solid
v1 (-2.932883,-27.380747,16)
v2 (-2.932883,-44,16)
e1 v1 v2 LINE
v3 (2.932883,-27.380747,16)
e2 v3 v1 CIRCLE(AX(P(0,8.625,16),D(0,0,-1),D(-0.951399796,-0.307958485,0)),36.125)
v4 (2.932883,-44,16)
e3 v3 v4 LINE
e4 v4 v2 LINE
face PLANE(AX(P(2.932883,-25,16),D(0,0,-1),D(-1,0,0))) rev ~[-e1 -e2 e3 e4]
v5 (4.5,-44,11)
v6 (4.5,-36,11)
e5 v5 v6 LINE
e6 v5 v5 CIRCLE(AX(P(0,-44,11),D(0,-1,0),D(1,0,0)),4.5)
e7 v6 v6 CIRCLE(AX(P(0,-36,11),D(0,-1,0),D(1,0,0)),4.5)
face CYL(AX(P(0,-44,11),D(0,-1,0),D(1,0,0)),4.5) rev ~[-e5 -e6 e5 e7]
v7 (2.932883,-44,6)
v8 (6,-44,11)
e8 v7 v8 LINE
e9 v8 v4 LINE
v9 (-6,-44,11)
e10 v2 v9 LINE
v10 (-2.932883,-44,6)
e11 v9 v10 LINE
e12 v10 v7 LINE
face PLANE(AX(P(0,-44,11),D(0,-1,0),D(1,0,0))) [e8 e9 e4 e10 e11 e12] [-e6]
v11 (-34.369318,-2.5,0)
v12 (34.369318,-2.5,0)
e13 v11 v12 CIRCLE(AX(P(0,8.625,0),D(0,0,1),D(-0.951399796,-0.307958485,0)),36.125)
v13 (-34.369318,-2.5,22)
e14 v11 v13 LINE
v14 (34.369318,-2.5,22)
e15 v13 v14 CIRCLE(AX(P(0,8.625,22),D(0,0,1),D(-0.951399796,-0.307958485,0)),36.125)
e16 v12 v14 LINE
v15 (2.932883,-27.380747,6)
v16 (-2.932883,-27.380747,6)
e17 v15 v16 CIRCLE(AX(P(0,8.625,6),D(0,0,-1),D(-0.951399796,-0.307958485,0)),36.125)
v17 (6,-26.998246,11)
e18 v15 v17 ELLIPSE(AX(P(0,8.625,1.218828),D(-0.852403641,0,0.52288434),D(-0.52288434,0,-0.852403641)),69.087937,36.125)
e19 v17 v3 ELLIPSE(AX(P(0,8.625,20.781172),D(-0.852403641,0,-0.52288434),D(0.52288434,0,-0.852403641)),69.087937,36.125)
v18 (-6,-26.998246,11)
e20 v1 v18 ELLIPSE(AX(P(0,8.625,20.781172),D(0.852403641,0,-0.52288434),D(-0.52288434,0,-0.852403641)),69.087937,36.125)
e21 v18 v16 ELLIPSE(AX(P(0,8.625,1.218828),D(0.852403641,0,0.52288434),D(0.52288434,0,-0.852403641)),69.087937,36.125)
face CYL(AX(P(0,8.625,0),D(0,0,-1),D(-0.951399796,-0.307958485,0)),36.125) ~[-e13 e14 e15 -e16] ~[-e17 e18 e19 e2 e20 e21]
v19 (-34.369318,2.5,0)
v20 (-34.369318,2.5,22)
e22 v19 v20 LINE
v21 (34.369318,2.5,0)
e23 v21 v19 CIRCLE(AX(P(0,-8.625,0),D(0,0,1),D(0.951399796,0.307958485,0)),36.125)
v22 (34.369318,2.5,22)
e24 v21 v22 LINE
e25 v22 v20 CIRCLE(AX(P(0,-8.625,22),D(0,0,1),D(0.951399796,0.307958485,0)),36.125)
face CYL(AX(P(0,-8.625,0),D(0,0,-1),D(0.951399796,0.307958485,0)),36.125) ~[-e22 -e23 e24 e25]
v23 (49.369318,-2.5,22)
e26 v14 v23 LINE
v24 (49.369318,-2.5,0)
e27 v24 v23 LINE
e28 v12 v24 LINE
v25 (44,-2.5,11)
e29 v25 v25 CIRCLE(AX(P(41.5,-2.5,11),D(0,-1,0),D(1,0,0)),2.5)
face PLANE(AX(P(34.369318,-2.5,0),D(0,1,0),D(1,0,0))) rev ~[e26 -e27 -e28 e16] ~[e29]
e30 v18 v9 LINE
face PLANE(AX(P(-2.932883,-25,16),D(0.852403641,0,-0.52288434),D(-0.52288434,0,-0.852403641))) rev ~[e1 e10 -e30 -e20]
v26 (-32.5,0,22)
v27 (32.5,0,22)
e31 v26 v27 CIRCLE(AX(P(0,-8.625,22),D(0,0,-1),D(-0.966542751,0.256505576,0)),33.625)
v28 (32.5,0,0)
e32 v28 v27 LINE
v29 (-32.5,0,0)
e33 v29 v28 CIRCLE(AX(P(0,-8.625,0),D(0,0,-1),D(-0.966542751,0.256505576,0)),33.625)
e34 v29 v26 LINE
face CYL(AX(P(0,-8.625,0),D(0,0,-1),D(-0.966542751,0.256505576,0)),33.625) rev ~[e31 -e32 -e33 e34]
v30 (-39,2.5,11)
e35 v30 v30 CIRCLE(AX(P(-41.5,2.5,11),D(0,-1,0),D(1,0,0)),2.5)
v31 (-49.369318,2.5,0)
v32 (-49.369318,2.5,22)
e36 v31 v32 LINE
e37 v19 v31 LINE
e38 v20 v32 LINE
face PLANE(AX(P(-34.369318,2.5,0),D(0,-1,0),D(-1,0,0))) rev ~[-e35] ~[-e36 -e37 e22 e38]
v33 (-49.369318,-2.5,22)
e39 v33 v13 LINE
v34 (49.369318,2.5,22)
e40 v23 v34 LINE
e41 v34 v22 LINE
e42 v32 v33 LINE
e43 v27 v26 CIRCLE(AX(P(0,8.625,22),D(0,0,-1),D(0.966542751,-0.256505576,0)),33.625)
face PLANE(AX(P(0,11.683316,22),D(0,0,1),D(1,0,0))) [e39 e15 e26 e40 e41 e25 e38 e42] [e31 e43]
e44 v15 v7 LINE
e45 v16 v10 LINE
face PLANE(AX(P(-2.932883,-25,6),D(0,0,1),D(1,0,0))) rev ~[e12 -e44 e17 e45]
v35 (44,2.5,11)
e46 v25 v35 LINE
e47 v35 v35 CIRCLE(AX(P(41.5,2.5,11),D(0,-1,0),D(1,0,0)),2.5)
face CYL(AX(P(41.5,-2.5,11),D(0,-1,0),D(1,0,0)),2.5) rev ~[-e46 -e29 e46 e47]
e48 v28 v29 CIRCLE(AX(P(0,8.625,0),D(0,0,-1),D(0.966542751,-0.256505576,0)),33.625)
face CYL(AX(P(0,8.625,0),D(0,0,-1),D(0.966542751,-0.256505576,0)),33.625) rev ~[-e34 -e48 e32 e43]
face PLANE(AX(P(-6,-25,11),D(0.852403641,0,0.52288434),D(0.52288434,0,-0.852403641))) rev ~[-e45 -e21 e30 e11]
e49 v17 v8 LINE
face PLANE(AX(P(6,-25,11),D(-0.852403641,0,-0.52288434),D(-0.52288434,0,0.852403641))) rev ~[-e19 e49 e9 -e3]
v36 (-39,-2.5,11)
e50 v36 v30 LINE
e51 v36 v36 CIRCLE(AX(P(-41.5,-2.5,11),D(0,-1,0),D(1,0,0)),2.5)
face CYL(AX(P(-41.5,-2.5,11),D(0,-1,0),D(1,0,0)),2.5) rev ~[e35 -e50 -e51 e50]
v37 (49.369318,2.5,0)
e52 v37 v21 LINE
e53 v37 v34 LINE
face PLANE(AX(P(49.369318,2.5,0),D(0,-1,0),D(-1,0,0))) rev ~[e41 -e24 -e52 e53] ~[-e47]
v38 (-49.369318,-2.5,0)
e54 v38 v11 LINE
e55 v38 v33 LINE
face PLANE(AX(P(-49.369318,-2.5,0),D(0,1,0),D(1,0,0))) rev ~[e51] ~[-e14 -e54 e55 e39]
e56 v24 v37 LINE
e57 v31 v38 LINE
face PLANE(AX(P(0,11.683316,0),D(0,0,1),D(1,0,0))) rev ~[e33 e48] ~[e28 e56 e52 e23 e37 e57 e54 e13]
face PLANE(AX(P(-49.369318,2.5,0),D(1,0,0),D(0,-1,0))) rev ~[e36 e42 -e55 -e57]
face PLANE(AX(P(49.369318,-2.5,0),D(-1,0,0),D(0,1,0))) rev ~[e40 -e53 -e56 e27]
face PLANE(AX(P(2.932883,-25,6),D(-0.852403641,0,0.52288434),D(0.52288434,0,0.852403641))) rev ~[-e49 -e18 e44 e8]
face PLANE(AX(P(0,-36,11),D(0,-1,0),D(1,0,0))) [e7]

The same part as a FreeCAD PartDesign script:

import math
import FreeCAD as App
import Part
import Sketcher
from FreeCAD import Vector
Q = App.Units.Quantity

doc = App.newDocument("Part")
params = doc.addObject("Spreadsheet::Sheet", "Params")
for row, (alias, value) in enumerate([
    ("sketch1_width", "15 mm"),
    ("sketch1_height", "5 mm"),
    ("pad1_length", "22 mm"),
    ("pad2_length", "19 mm"),
    ("sketch3_diameter", "5 mm"),
    ("sketch4_diameter", "9 mm"),
    ("pocket2_length", "8 mm"),
], start=1):
    params.set(f"A{row}", alias)
    params.set(f"B{row}", "=" + value)
    params.setAlias(f"B{row}", alias)

body = doc.addObject("PartDesign::Body", "Body")

# Sketch on XY plane
sketch1 = body.newObject("Sketcher::SketchObject", "Sketch")
sketch1.AttachmentSupport = (doc.getObject("XY_Plane"), [""])
sketch1.MapMode = "FlatFace"
sketch1.addGeometry([
    Part.LineSegment(Vector(49, 2, 0), Vector(34, 2, 0)),  # 0
    Part.ArcOfCircle(Part.Circle(Vector(0, -9, 0), Vector(0, 0, 1), 36), math.radians(18), math.radians(162)),  # 1
    Part.LineSegment(Vector(-34, 2, 0), Vector(-49, 2, 0)),  # 2
    Part.LineSegment(Vector(-49, 2, 0), Vector(-49, -2, 0)),  # 3
    Part.LineSegment(Vector(-49, -2, 0), Vector(-34, -2, 0)),  # 4
    Part.ArcOfCircle(Part.Circle(Vector(0, 9, 0), Vector(0, 0, 1), 36), math.radians(-162), math.radians(-18)),  # 5
    Part.LineSegment(Vector(34, -2, 0), Vector(49, -2, 0)),  # 6
    Part.LineSegment(Vector(49, -2, 0), Vector(49, 2, 0)),  # 7
    Part.ArcOfCircle(Part.Circle(Vector(0, -9, 0), Vector(0, 0, 1), 34), math.radians(15), math.radians(165)),  # 8
    Part.ArcOfCircle(Part.Circle(Vector(0, 9, 0), Vector(0, 0, 1), 34), math.radians(-165), math.radians(-15)),  # 9
], False)
sketch1.addConstraint([
    Sketcher.Constraint("Coincident", 0, 2, 1, 1),
    Sketcher.Constraint("Coincident", 1, 2, 2, 1),
    Sketcher.Constraint("Coincident", 2, 2, 3, 1),
    Sketcher.Constraint("Coincident", 3, 2, 4, 1),
    Sketcher.Constraint("Coincident", 4, 2, 5, 1),
    Sketcher.Constraint("Coincident", 5, 2, 6, 1),
    Sketcher.Constraint("Coincident", 6, 2, 7, 1),
    Sketcher.Constraint("Coincident", 7, 2, 0, 1),
    Sketcher.Constraint("Coincident", 8, 1, 9, 2),
    Sketcher.Constraint("Coincident", 9, 1, 8, 2),
    Sketcher.Constraint("Horizontal", 0),
    Sketcher.Constraint("Horizontal", 2),
    Sketcher.Constraint("Vertical", 3),
    Sketcher.Constraint("Horizontal", 4),
    Sketcher.Constraint("Horizontal", 6),
    Sketcher.Constraint("Vertical", 7),
    Sketcher.Constraint("Coincident", 8, 3, 1, 3),
    Sketcher.Constraint("Coincident", 9, 3, 5, 3),
    Sketcher.Constraint("Equal", 1, 5),
    Sketcher.Constraint("Equal", 8, 9),
    Sketcher.Constraint("Symmetric", 1, 3, 5, 3, -1, 1),
    Sketcher.Constraint("Symmetric", 2, 2, 6, 2, -1, 1),
    Sketcher.Constraint("Symmetric", 0, 2, 1, 2, -2),
    Sketcher.Constraint("Horizontal", 4, 2, 5, 2),
    Sketcher.Constraint("DistanceX", 0, 2, 0, 1, Q("15 mm")),
    Sketcher.Constraint("DistanceY", 3, 2, 3, 1, Q("5 mm")),
    Sketcher.Constraint("Radius", 1, Q("36.125 mm")),
    Sketcher.Constraint("Radius", 8, Q("33.625 mm")),
    Sketcher.Constraint("DistanceX", -1, 1, 8, 1, Q("32.5 mm")),
])
sketch1.setExpression("Constraints[24]", "Params.sketch1_width")
sketch1.setExpression("Constraints[25]", "Params.sketch1_height")
pad1 = body.newObject("PartDesign::Pad", "Pad")
pad1.Profile = sketch1
pad1.setExpression("Length", "Params.pad1_length")

# Sketch on XZ plane
sketch2 = body.newObject("Sketcher::SketchObject", "Sketch001")
sketch2.AttachmentSupport = (doc.getObject("XZ_Plane"), [""])
sketch2.MapMode = "FlatFace"
sketch2.AttachmentOffset = App.Placement(Vector(0, 0, 25), App.Rotation())
sketch2.addGeometry([
    Part.LineSegment(Vector(6, 11, 0), Vector(3, 16, 0)),  # 0
    Part.LineSegment(Vector(3, 16, 0), Vector(-3, 16, 0)),  # 1
    Part.LineSegment(Vector(-3, 16, 0), Vector(-6, 11, 0)),  # 2
    Part.LineSegment(Vector(-6, 11, 0), Vector(-3, 6, 0)),  # 3
    Part.LineSegment(Vector(-3, 6, 0), Vector(3, 6, 0)),  # 4
    Part.LineSegment(Vector(3, 6, 0), Vector(6, 11, 0)),  # 5
], False)
sketch2.addConstraint([
    Sketcher.Constraint("Coincident", 0, 2, 1, 1),
    Sketcher.Constraint("Coincident", 1, 2, 2, 1),
    Sketcher.Constraint("Coincident", 2, 2, 3, 1),
    Sketcher.Constraint("Coincident", 3, 2, 4, 1),
    Sketcher.Constraint("Coincident", 4, 2, 5, 1),
    Sketcher.Constraint("Coincident", 5, 2, 0, 1),
    Sketcher.Constraint("Horizontal", 1),
    Sketcher.Constraint("Horizontal", 4),
    Sketcher.Constraint("Symmetric", 2, 2, 5, 2, -2),
    Sketcher.Constraint("Parallel", 0, 3),
    Sketcher.Constraint("Parallel", 2, 5),
    Sketcher.Constraint("Vertical", 1, 2, 3, 2),
    Sketcher.Constraint("Vertical", 0, 2, 4, 2),
    Sketcher.Constraint("DistanceY", -1, 1, 0, 2, Q("16 mm")),
    Sketcher.Constraint("DistanceX", 2, 2, -1, 1, Q("6 mm")),
    Sketcher.Constraint("DistanceY", -1, 1, 2, 2, Q("11 mm")),
    Sketcher.Constraint("DistanceX", 1, 2, 1, 1, Q("5.865766 mm")),
])
pad2 = body.newObject("PartDesign::Pad", "Pad001")
pad2.Profile = sketch2
pad2.setExpression("Length", "Params.pad2_length")

# Sketch on XZ plane
sketch3 = body.newObject("Sketcher::SketchObject", "Sketch002")
sketch3.AttachmentSupport = (doc.getObject("XZ_Plane"), [""])
sketch3.MapMode = "FlatFace"
sketch3.AttachmentOffset = App.Placement(Vector(0, 0, 2.5), App.Rotation())
sketch3.addGeometry([
    Part.Circle(Vector(41.5, 11, 0), Vector(0, 0, 1), 2.5),
    Part.Circle(Vector(-41.5, 11, 0), Vector(0, 0, 1), 2.5),
], False)
sketch3.addConstraint([
    Sketcher.Constraint("Equal", 0, 1),
    Sketcher.Constraint("Symmetric", 0, 3, 1, 3, -2),
    Sketcher.Constraint("Diameter", 0, Q("5 mm")),
    Sketcher.Constraint("DistanceY", -1, 1, 0, 3, Q("11 mm")),
    Sketcher.Constraint("DistanceX", 1, 3, 0, 3, Q("83 mm")),
])
sketch3.setExpression("Constraints[2]", "Params.sketch3_diameter")
pocket1 = body.newObject("PartDesign::Pocket", "Pocket")
pocket1.Profile = sketch3
pocket1.Type = "ThroughAll"

# Sketch on XZ plane
sketch4 = body.newObject("Sketcher::SketchObject", "Sketch003")
sketch4.AttachmentSupport = (doc.getObject("XZ_Plane"), [""])
sketch4.MapMode = "FlatFace"
sketch4.AttachmentOffset = App.Placement(Vector(0, 0, 44), App.Rotation())
sketch4.addGeometry(Part.Circle(Vector(0, 11, 0), Vector(0, 0, 1), 4.5), False)
sketch4.addConstraint([
    Sketcher.Constraint("PointOnObject", 0, 3, -2),
    Sketcher.Constraint("Diameter", 0, Q("9 mm")),
    Sketcher.Constraint("DistanceY", -1, 1, 0, 3, Q("11 mm")),
])
sketch4.setExpression("Constraints[1]", "Params.sketch4_diameter")
pocket2 = body.newObject("PartDesign::Pocket", "Pocket001")
pocket2.Profile = sketch4
pocket2.setExpression("Length", "Params.pocket2_length")

doc.recompute()
